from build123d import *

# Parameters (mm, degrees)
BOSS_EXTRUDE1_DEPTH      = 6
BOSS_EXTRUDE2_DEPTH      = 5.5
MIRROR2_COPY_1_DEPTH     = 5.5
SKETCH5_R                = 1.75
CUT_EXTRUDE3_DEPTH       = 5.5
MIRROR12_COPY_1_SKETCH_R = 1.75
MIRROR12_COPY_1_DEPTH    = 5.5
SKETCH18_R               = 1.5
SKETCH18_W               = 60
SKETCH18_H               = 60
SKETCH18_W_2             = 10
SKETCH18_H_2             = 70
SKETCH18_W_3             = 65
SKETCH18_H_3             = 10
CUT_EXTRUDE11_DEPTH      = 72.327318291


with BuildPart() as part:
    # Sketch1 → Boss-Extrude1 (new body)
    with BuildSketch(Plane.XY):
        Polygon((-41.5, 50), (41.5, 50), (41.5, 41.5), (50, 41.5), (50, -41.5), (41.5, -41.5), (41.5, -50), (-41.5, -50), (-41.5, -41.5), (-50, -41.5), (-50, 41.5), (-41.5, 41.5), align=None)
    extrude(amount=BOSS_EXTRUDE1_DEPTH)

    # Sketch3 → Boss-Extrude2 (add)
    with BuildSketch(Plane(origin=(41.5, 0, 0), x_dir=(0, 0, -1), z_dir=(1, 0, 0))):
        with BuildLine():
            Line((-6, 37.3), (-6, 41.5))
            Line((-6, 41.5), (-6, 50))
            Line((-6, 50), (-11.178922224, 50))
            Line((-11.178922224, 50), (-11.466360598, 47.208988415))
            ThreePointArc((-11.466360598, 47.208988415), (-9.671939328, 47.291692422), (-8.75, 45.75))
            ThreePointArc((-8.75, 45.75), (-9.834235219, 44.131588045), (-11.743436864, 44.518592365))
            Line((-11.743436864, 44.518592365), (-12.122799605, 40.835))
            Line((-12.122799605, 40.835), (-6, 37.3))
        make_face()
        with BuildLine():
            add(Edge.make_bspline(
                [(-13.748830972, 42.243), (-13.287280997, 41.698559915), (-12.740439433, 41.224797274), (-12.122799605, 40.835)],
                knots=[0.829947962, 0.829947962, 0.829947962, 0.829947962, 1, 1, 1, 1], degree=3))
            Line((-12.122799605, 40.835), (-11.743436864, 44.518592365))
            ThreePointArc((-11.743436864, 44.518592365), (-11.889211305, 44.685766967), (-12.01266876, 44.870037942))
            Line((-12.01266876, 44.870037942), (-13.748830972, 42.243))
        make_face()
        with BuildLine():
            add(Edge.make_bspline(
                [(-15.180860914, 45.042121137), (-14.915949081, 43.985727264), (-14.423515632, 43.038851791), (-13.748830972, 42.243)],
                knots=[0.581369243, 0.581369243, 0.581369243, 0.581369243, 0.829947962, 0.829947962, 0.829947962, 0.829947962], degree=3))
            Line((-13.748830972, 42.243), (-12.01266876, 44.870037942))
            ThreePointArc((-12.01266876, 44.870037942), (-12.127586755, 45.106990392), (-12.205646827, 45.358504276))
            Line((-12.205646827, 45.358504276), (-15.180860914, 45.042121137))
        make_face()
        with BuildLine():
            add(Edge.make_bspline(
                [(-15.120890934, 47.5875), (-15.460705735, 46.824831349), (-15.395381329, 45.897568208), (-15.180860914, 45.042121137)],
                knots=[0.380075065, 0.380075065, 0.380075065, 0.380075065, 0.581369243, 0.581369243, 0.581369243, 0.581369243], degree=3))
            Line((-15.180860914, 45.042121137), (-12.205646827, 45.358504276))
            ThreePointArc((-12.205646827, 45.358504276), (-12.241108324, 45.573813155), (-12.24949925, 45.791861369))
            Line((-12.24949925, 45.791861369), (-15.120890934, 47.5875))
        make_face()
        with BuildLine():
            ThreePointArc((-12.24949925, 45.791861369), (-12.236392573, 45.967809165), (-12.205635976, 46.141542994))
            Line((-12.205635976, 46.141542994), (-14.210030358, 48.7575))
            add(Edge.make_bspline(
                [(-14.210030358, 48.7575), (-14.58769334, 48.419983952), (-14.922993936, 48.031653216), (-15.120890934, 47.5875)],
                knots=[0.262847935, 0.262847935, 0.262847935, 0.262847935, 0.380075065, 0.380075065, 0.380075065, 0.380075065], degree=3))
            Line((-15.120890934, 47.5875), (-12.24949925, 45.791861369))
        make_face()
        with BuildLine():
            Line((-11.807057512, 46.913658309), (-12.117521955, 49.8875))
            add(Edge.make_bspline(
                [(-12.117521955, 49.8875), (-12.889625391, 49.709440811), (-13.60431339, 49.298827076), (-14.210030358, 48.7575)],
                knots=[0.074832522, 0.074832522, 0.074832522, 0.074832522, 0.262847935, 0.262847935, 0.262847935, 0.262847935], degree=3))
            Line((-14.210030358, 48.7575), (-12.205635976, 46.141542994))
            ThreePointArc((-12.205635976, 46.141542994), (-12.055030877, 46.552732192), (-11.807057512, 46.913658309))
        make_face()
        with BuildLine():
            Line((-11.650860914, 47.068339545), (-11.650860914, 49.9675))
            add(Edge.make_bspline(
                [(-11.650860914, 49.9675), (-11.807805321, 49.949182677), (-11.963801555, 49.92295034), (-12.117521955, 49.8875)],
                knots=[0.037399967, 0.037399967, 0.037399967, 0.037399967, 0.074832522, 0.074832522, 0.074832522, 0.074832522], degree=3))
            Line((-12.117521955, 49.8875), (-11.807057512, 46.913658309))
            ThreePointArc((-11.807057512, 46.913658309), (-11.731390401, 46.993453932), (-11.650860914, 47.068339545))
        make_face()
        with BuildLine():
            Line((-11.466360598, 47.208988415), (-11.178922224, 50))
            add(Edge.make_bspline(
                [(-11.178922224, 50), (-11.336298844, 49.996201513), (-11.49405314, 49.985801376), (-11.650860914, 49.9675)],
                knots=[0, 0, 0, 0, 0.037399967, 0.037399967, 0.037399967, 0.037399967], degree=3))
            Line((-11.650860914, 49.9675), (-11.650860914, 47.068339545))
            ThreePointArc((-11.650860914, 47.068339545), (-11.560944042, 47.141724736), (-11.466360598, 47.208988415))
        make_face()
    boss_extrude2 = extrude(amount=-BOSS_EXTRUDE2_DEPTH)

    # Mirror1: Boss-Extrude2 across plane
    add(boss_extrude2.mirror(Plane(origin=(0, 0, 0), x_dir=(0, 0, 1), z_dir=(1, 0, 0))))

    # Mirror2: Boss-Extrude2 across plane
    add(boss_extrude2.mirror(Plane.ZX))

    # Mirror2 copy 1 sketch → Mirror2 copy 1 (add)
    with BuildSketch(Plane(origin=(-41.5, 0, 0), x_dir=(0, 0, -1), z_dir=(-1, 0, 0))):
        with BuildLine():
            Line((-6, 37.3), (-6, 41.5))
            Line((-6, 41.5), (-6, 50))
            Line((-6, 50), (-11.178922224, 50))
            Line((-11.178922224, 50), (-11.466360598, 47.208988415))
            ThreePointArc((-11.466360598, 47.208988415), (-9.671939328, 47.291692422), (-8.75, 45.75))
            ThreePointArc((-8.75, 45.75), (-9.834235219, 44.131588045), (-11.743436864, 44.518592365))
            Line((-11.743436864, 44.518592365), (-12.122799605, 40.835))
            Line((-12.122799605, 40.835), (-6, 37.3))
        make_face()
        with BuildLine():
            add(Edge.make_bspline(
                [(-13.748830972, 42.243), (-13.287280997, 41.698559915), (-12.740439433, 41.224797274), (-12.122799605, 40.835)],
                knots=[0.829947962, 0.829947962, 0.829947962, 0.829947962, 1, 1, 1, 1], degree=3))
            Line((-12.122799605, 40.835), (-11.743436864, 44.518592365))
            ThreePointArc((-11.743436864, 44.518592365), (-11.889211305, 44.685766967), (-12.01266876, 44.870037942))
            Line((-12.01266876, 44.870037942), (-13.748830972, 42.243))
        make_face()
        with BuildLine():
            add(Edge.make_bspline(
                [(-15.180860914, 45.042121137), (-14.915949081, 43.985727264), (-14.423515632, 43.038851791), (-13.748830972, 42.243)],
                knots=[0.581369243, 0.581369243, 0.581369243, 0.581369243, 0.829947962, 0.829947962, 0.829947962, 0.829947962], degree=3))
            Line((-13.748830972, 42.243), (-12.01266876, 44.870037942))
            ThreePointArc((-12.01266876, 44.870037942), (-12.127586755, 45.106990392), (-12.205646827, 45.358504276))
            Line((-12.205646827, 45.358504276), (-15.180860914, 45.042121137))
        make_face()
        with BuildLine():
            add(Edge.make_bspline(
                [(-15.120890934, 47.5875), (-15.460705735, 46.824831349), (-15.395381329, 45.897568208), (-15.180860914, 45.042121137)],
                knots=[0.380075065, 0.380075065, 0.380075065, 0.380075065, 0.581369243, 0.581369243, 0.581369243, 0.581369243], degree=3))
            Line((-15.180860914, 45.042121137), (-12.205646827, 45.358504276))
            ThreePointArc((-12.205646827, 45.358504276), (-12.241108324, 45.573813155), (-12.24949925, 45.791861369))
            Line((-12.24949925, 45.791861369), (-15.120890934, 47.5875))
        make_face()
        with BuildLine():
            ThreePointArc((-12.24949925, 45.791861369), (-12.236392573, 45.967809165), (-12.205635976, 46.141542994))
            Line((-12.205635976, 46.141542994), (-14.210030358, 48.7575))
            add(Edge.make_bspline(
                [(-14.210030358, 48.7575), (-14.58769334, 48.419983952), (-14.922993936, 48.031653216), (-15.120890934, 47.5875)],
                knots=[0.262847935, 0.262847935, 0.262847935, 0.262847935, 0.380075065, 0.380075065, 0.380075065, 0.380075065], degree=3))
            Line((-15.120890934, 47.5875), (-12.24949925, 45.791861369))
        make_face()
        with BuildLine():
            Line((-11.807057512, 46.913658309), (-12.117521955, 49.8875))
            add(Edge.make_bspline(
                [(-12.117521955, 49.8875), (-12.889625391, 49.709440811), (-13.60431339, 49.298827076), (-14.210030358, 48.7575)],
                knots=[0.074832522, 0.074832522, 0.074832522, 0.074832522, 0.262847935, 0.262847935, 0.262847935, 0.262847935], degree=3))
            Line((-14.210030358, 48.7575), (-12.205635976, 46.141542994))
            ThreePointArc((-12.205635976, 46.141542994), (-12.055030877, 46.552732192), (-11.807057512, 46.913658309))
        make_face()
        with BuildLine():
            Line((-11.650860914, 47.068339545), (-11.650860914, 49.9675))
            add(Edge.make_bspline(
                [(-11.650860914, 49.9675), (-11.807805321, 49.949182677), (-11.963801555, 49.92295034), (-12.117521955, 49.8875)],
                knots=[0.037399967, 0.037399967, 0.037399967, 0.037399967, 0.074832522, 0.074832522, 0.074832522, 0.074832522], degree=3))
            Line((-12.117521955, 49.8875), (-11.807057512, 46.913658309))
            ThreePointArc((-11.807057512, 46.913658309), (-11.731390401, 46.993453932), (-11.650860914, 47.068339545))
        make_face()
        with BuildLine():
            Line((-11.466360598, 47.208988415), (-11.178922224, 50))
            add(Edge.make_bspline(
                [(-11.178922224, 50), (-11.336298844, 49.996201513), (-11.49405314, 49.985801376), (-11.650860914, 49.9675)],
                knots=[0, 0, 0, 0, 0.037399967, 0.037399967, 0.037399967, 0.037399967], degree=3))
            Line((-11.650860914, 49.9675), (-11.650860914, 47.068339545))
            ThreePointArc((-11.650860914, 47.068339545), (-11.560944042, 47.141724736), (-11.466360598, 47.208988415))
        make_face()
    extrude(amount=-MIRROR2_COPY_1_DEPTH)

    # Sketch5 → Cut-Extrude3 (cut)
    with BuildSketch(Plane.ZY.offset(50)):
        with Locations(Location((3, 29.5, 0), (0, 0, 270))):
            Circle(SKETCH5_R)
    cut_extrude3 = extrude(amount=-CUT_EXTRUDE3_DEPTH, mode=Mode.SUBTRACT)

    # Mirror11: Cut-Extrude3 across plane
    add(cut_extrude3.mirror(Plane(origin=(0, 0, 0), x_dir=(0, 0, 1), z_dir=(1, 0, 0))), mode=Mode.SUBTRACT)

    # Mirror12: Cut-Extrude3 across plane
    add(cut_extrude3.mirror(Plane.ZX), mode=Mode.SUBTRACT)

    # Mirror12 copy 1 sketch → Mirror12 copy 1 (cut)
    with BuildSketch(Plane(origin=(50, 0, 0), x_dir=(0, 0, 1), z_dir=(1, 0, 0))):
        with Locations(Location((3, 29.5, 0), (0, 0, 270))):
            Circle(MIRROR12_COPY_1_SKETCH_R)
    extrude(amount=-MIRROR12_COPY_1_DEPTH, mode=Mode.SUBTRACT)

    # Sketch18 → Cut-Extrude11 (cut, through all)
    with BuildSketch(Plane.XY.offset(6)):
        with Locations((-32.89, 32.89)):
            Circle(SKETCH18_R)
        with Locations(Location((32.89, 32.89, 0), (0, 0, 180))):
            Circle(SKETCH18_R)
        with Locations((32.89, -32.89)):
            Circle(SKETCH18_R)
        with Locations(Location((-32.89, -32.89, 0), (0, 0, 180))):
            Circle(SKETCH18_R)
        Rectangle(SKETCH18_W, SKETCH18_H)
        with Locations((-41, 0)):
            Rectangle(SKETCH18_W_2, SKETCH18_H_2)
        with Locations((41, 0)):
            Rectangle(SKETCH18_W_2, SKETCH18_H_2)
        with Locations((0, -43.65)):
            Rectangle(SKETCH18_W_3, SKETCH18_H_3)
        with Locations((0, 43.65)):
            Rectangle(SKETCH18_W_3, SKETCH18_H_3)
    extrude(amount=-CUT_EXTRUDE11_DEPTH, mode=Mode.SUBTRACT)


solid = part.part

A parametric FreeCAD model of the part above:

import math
import FreeCAD as App
import Part
import Sketcher


def add_polygon(sketch, points):
    """Adds a closed chain of lines whose ends are joined by coincident constraints."""
    first, n = sketch.GeometryCount, len(points)
    for a, b in zip(points, points[1:] + points[:1]):
        sketch.addGeometry(Part.LineSegment(App.Vector(*a, 0), App.Vector(*b, 0)), False)
    for i in range(n):
        sketch.addConstraint(Sketcher.Constraint("Coincident", first + i, 2, first + (i + 1) % n, 1))

doc = App.newDocument("Part")
body = doc.addObject("PartDesign::Body", "Body")

# Sketch on XY plane
sketch1 = body.newObject("Sketcher::SketchObject", "Sketch")
sketch1.AttachmentSupport = (doc.getObject("XY_Plane"), [""])
sketch1.MapMode = "FlatFace"
add_polygon(sketch1, [(41.5, 50), (-41.5, 50), (-41.5, 41.5), (-50, 41.5), (-50, -41.5), (-41.5, -41.5), (-41.5, -50), (41.5, -50), (41.5, -41.5), (50, -41.5), (50, 41.5), (41.5, 41.5)])  # lines 0-11
sketch1.addConstraint(Sketcher.Constraint("Horizontal", 0))
sketch1.addConstraint(Sketcher.Constraint("Vertical", 1))
sketch1.addConstraint(Sketcher.Constraint("Horizontal", 2))
sketch1.addConstraint(Sketcher.Constraint("Vertical", 3))
sketch1.addConstraint(Sketcher.Constraint("Horizontal", 4))
sketch1.addConstraint(Sketcher.Constraint("Vertical", 5))
sketch1.addConstraint(Sketcher.Constraint("Horizontal", 6))
sketch1.addConstraint(Sketcher.Constraint("Vertical", 7))
sketch1.addConstraint(Sketcher.Constraint("Horizontal", 8))
sketch1.addConstraint(Sketcher.Constraint("Vertical", 9))
sketch1.addConstraint(Sketcher.Constraint("Horizontal", 10))
sketch1.addConstraint(Sketcher.Constraint("Vertical", 11))
sketch1.addConstraint(Sketcher.Constraint("Symmetric", 0, 2, 6, 2, -1, 1))
sketch1.addConstraint(Sketcher.Constraint("Symmetric", 2, 2, 8, 2, -1, 1))
sketch1.addConstraint(Sketcher.Constraint("Symmetric", 4, 2, 10, 2, -1, 1))
sketch1.addConstraint(Sketcher.Constraint("Symmetric", 4, 2, 7, 2, -2))
sketch1.addConstraint(Sketcher.Constraint("Equal", 10, 1))
sketch1.addConstraint(Sketcher.Constraint("Equal", 6, 3))
sketch1.addConstraint(Sketcher.Constraint("DistanceX", 0, 2, 0, 1, 83.0))
sketch1.addConstraint(Sketcher.Constraint("DistanceX", 2, 2, 2, 1, 8.5))
pad1 = body.newObject("PartDesign::Pad", "Pad")
pad1.Profile = sketch1
pad1.Length = 6

# Sketch on YZ plane
sketch2 = body.newObject("Sketcher::SketchObject", "Sketch001")
sketch2.AttachmentSupport = (doc.getObject("YZ_Plane"), [""])
sketch2.MapMode = "FlatFace"
sketch2.AttachmentOffset = App.Placement(App.Vector(0, 0, 41.5), App.Rotation())
sketch2.addGeometry(Part.LineSegment(App.Vector(37.3, 6, 0), App.Vector(50, 6, 0)), False)
sketch2.addGeometry(Part.LineSegment(App.Vector(50, 6, 0), App.Vector(50, 11.178922, 0)), False)
sketch2.addGeometry(Part.BSplineCurve([App.Vector(50, 11.178922, 0), App.Vector(49.996202, 11.336299, 0), App.Vector(49.985801, 11.494053, 0), App.Vector(49.9675, 11.650861, 0)], [4, 4], [0, 0.037399967], False, 3, [1, 1, 1, 1], False), False)
sketch2.addGeometry(Part.BSplineCurve([App.Vector(49.9675, 11.650861, 0), App.Vector(49.949183, 11.807805, 0), App.Vector(49.92295, 11.963802, 0), App.Vector(49.8875, 12.117522, 0)], [4, 4], [0.037399967, 0.074832522], False, 3, [1, 1, 1, 1], False), False)
sketch2.addGeometry(Part.BSplineCurve([App.Vector(49.8875, 12.117522, 0), App.Vector(49.709441, 12.889625, 0), App.Vector(49.298827, 13.604313, 0), App.Vector(48.7575, 14.21003, 0)], [4, 4], [0.074832522, 0.262847935], False, 3, [1, 1, 1, 1], False), False)
sketch2.addGeometry(Part.BSplineCurve([App.Vector(48.7575, 14.21003, 0), App.Vector(48.419984, 14.587693, 0), App.Vector(48.031653, 14.922994, 0), App.Vector(47.5875, 15.120891, 0)], [4, 4], [0.262847935, 0.380075065], False, 3, [1, 1, 1, 1], False), False)
sketch2.addGeometry(Part.BSplineCurve([App.Vector(47.5875, 15.120891, 0), App.Vector(46.824831, 15.460706, 0), App.Vector(45.897568, 15.395381, 0), App.Vector(45.042121, 15.180861, 0)], [4, 4], [0.380075065, 0.581369243], False, 3, [1, 1, 1, 1], False), False)
sketch2.addGeometry(Part.BSplineCurve([App.Vector(45.042121, 15.180861, 0), App.Vector(43.985727, 14.915949, 0), App.Vector(43.038852, 14.423516, 0), App.Vector(42.243, 13.748831, 0)], [4, 4], [0.581369243, 0.829947962], False, 3, [1, 1, 1, 1], False), False)
sketch2.addGeometry(Part.BSplineCurve([App.Vector(42.243, 13.748831, 0), App.Vector(41.69856, 13.287281, 0), App.Vector(41.224797, 12.740439, 0), App.Vector(40.835, 12.1228, 0)], [4, 4], [0.829947962, 1], False, 3, [1, 1, 1, 1], False), False)
sketch2.addGeometry(Part.LineSegment(App.Vector(40.835, 12.1228, 0), App.Vector(37.3, 6, 0)), False)
sketch2.addGeometry(Part.ArcOfCircle(Part.Circle(App.Vector(45.75, 10.5, 0), App.Vector(0, 0, 1), 1.75), math.radians(-90), math.radians(33.51849)), False)
sketch2.addGeometry(Part.ArcOfCircle(Part.Circle(App.Vector(45.75, 10.5, 0), App.Vector(0, 0, 1), 1.75), math.radians(134.72151), math.radians(270)), False)
sketch2.addGeometry(Part.ArcOfCircle(Part.Circle(App.Vector(45.75, 10.5, 0), App.Vector(0, 0, 1), 1.75), math.radians(120.187771), math.radians(134.72151)), False)
sketch2.addGeometry(Part.ArcOfCircle(Part.Circle(App.Vector(45.75, 10.5, 0), App.Vector(0, 0, 1), 1.75), math.radians(102.927141), math.radians(120.187771)), False)
sketch2.addGeometry(Part.ArcOfCircle(Part.Circle(App.Vector(45.75, 10.5, 0), App.Vector(0, 0, 1), 1.75), math.radians(88.629309), math.radians(102.927141)), False)
sketch2.addGeometry(Part.ArcOfCircle(Part.Circle(App.Vector(45.75, 10.5, 0), App.Vector(0, 0, 1), 1.75), math.radians(77.071271), math.radians(88.629309)), False)
sketch2.addGeometry(Part.ArcOfCircle(Part.Circle(App.Vector(45.75, 10.5, 0), App.Vector(0, 0, 1), 1.75), math.radians(48.321694), math.radians(77.071271)), False)
sketch2.addGeometry(Part.ArcOfCircle(Part.Circle(App.Vector(45.75, 10.5, 0), App.Vector(0, 0, 1), 1.75), math.radians(41.119738), math.radians(48.321694)), False)
sketch2.addGeometry(Part.ArcOfCircle(Part.Circle(App.Vector(45.75, 10.5, 0), App.Vector(0, 0, 1), 1.75), math.radians(33.518489), math.radians(41.119739)), False)
sketch2.addConstraint(Sketcher.Constraint("Block", 2))
sketch2.addConstraint(Sketcher.Constraint("Block", 3))
sketch2.addConstraint(Sketcher.Constraint("Block", 4))
sketch2.addConstraint(Sketcher.Constraint("Block", 5))
sketch2.addConstraint(Sketcher.Constraint("Block", 6))
sketch2.addConstraint(Sketcher.Constraint("Block", 7))
sketch2.addConstraint(Sketcher.Constraint("Block", 8))
sketch2.addConstraint(Sketcher.Constraint("Coincident", 0, 2, 1, 1))
sketch2.addConstraint(Sketcher.Constraint("Coincident", 1, 2, 2, 1))
sketch2.addConstraint(Sketcher.Constraint("Coincident", 8, 2, 9, 1))
sketch2.addConstraint(Sketcher.Constraint("Coincident", 9, 2, 0, 1))
sketch2.addConstraint(Sketcher.Constraint("Coincident", 10, 1, 11, 2))
sketch2.addConstraint(Sketcher.Constraint("Coincident", 11, 1, 12, 2))
sketch2.addConstraint(Sketcher.Constraint("Coincident", 12, 1, 13, 2))
sketch2.addConstraint(Sketcher.Constraint("Coincident", 13, 1, 14, 2))
sketch2.addConstraint(Sketcher.Constraint("Coincident", 14, 1, 15, 2))
sketch2.addConstraint(Sketcher.Constraint("Coincident", 15, 1, 16, 2))
sketch2.addConstraint(Sketcher.Constraint("Coincident", 16, 1, 17, 2))
sketch2.addConstraint(Sketcher.Constraint("Coincident", 17, 1, 18, 2))
sketch2.addConstraint(Sketcher.Constraint("Coincident", 18, 1, 10, 2))
sketch2.addConstraint(Sketcher.Constraint("Horizontal", 0))
sketch2.addConstraint(Sketcher.Constraint("Vertical", 1))
sketch2.addConstraint(Sketcher.Constraint("Coincident", 11, 3, 10, 3))
sketch2.addConstraint(Sketcher.Constraint("Coincident", 12, 3, 10, 3))
sketch2.addConstraint(Sketcher.Constraint("Coincident", 13, 3, 10, 3))
sketch2.addConstraint(Sketcher.Constraint("Coincident", 14, 3, 10, 3))
sketch2.addConstraint(Sketcher.Constraint("Coincident", 15, 3, 10, 3))
sketch2.addConstraint(Sketcher.Constraint("Coincident", 16, 3, 10, 3))
sketch2.addConstraint(Sketcher.Constraint("Coincident", 17, 3, 10, 3))
sketch2.addConstraint(Sketcher.Constraint("Radius", 10, 1.75))
sketch2.addConstraint(Sketcher.Constraint("Radius", 18, 1.75))
sketch2.addConstraint(Sketcher.Constraint("DistanceX", 0, 1, 0, 2, 12.7))
sketch2.addConstraint(Sketcher.Constraint("DistanceY", -1, 1, 0, 2, 6.0))
sketch2.addConstraint(Sketcher.Constraint("DistanceY", -1, 1, 10, 3, 10.5))
sketch2.addConstraint(Sketcher.Constraint("DistanceX", -1, 1, 10, 3, 45.75))
sketch2.addConstraint(Sketcher.Constraint("DistanceX", -1, 1, 10, 1, 45.75))
sketch2.addConstraint(Sketcher.Constraint("DistanceY", -1, 1, 14, 1, 12.249499))
sketch2.addConstraint(Sketcher.Constraint("DistanceY", 11, 1, 15, 1, 0.462199))
sketch2.addConstraint(Sketcher.Constraint("DistanceY", 18, 1, 17, 1, 0.1845))
sketch2.addConstraint(Sketcher.Constraint("DistanceY", -1, 1, 12, 1, 12.012669))
sketch2.addConstraint(Sketcher.Constraint("DistanceX", -1, 1, 16, 1, 46.913658))
sketch2.addConstraint(Sketcher.Constraint("DistanceX", -1, 1, 17, 1, 47.06834))
sketch2.addConstraint(Sketcher.Constraint("DistanceY", 11, 1, 12, 1, 0.269232))
sketch2.addConstraint(Sketcher.Constraint("DistanceY", 12, 1, 13, 1, 0.192978))
pad2 = body.newObject("PartDesign::Pad", "Pad001")
pad2.Profile = sketch2
pad2.Length = 5.5
pad2.Reversed = True
doc.recompute()

mirrored = body.newObject("PartDesign::Mirrored", "Mirrored")
mirrored.Originals = [pad2]
mirrored.MirrorPlane = (doc.getObject("YZ_Plane"), [""])
body.Tip = mirrored
doc.recompute()

mirrored2 = body.newObject("PartDesign::Mirrored", "Mirrored001")
mirrored2.Originals = [pad2]
mirrored2.MirrorPlane = (doc.getObject("XZ_Plane"), [""])
body.Tip = mirrored2

# Sketch on YZ plane
sketch3 = body.newObject("Sketcher::SketchObject", "Sketch002")
sketch3.AttachmentSupport = (doc.getObject("YZ_Plane"), [""])
sketch3.MapMode = "FlatFace"
sketch3.AttachmentOffset = App.Placement(App.Vector(0, 0, -41.5), App.Rotation())
sketch3.addGeometry(Part.LineSegment(App.Vector(-37.3, 6, 0), App.Vector(-50, 6, 0)), False)
sketch3.addGeometry(Part.LineSegment(App.Vector(-50, 6, 0), App.Vector(-50, 11.178922, 0)), False)
sketch3.addGeometry(Part.BSplineCurve([App.Vector(-50, 11.178922, 0), App.Vector(-49.996202, 11.336299, 0), App.Vector(-49.985801, 11.494053, 0), App.Vector(-49.9675, 11.650861, 0)], [4, 4], [0, 0.037399967], False, 3, [1, 1, 1, 1], False), False)
sketch3.addGeometry(Part.BSplineCurve([App.Vector(-49.9675, 11.650861, 0), App.Vector(-49.949183, 11.807805, 0), App.Vector(-49.92295, 11.963802, 0), App.Vector(-49.8875, 12.117522, 0)], [4, 4], [0.037399967, 0.074832522], False, 3, [1, 1, 1, 1], False), False)
sketch3.addGeometry(Part.BSplineCurve([App.Vector(-49.8875, 12.117522, 0), App.Vector(-49.709441, 12.889625, 0), App.Vector(-49.298827, 13.604313, 0), App.Vector(-48.7575, 14.21003, 0)], [4, 4], [0.074832522, 0.262847935], False, 3, [1, 1, 1, 1], False), False)
sketch3.addGeometry(Part.BSplineCurve([App.Vector(-48.7575, 14.21003, 0), App.Vector(-48.419984, 14.587693, 0), App.Vector(-48.031653, 14.922994, 0), App.Vector(-47.5875, 15.120891, 0)], [4, 4], [0.262847935, 0.380075065], False, 3, [1, 1, 1, 1], False), False)
sketch3.addGeometry(Part.BSplineCurve([App.Vector(-47.5875, 15.120891, 0), App.Vector(-46.824831, 15.460706, 0), App.Vector(-45.897568, 15.395381, 0), App.Vector(-45.042121, 15.180861, 0)], [4, 4], [0.380075065, 0.581369243], False, 3, [1, 1, 1, 1], False), False)
sketch3.addGeometry(Part.BSplineCurve([App.Vector(-45.042121, 15.180861, 0), App.Vector(-43.985727, 14.915949, 0), App.Vector(-43.038852, 14.423516, 0), App.Vector(-42.243, 13.748831, 0)], [4, 4], [0.581369243, 0.829947962], False, 3, [1, 1, 1, 1], False), False)
sketch3.addGeometry(Part.BSplineCurve([App.Vector(-42.243, 13.748831, 0), App.Vector(-41.69856, 13.287281, 0), App.Vector(-41.224797, 12.740439, 0), App.Vector(-40.835, 12.1228, 0)], [4, 4], [0.829947962, 1], False, 3, [1, 1, 1, 1], False), False)
sketch3.addGeometry(Part.LineSegment(App.Vector(-40.835, 12.1228, 0), App.Vector(-37.3, 6, 0)), False)
sketch3.addGeometry(Part.ArcOfCircle(Part.Circle(App.Vector(-45.75, 10.5, 0), App.Vector(0, 0, 1), 1.75), math.radians(146.48151), math.radians(270)), False)
sketch3.addGeometry(Part.ArcOfCircle(Part.Circle(App.Vector(-45.75, 10.5, 0), App.Vector(0, 0, 1), 1.75), math.radians(-90), math.radians(45.27849)), False)
sketch3.addGeometry(Part.ArcOfCircle(Part.Circle(App.Vector(-45.75, 10.5, 0), App.Vector(0, 0, 1), 1.75), math.radians(45.27849), math.radians(59.812229)), False)
sketch3.addGeometry(Part.ArcOfCircle(Part.Circle(App.Vector(-45.75, 10.5, 0), App.Vector(0, 0, 1), 1.75), math.radians(59.812229), math.radians(77.072859)), False)
sketch3.addGeometry(Part.ArcOfCircle(Part.Circle(App.Vector(-45.75, 10.5, 0), App.Vector(0, 0, 1), 1.75), math.radians(77.072859), math.radians(91.370691)), False)
sketch3.addGeometry(Part.ArcOfCircle(Part.Circle(App.Vector(-45.75, 10.5, 0), App.Vector(0, 0, 1), 1.75), math.radians(91.370691), math.radians(102.928729)), False)
sketch3.addGeometry(Part.ArcOfCircle(Part.Circle(App.Vector(-45.75, 10.5, 0), App.Vector(0, 0, 1), 1.75), math.radians(102.928729), math.radians(131.678306)), False)
sketch3.addGeometry(Part.ArcOfCircle(Part.Circle(App.Vector(-45.75, 10.5, 0), App.Vector(0, 0, 1), 1.75), math.radians(131.678306), math.radians(138.880262)), False)
sketch3.addGeometry(Part.ArcOfCircle(Part.Circle(App.Vector(-45.75, 10.5, 0), App.Vector(0, 0, 1), 1.75), math.radians(138.880261), math.radians(146.481511)), False)
sketch3.addConstraint(Sketcher.Constraint("Block", 2))
sketch3.addConstraint(Sketcher.Constraint("Block", 3))
sketch3.addConstraint(Sketcher.Constraint("Block", 4))
sketch3.addConstraint(Sketcher.Constraint("Block", 5))
sketch3.addConstraint(Sketcher.Constraint("Block", 6))
sketch3.addConstraint(Sketcher.Constraint("Block", 7))
sketch3.addConstraint(Sketcher.Constraint("Block", 8))
sketch3.addConstraint(Sketcher.Constraint("Coincident", 0, 2, 1, 1))
sketch3.addConstraint(Sketcher.Constraint("Coincident", 1, 2, 2, 1))
sketch3.addConstraint(Sketcher.Constraint("Coincident", 8, 2, 9, 1))
sketch3.addConstraint(Sketcher.Constraint("Coincident", 9, 2, 0, 1))
sketch3.addConstraint(Sketcher.Constraint("Coincident", 10, 2, 11, 1))
sketch3.addConstraint(Sketcher.Constraint("Coincident", 11, 2, 12, 1))
sketch3.addConstraint(Sketcher.Constraint("Coincident", 12, 2, 13, 1))
sketch3.addConstraint(Sketcher.Constraint("Coincident", 13, 2, 14, 1))
sketch3.addConstraint(Sketcher.Constraint("Coincident", 14, 2, 15, 1))
sketch3.addConstraint(Sketcher.Constraint("Coincident", 15, 2, 16, 1))
sketch3.addConstraint(Sketcher.Constraint("Coincident", 16, 2, 17, 1))
sketch3.addConstraint(Sketcher.Constraint("Coincident", 17, 2, 18, 1))
sketch3.addConstraint(Sketcher.Constraint("Coincident", 18, 2, 10, 1))
sketch3.addConstraint(Sketcher.Constraint("Horizontal", 0))
sketch3.addConstraint(Sketcher.Constraint("Vertical", 1))
sketch3.addConstraint(Sketcher.Constraint("Coincident", 11, 3, 10, 3))
sketch3.addConstraint(Sketcher.Constraint("Coincident", 12, 3, 10, 3))
sketch3.addConstraint(Sketcher.Constraint("Coincident", 13, 3, 10, 3))
sketch3.addConstraint(Sketcher.Constraint("Coincident", 14, 3, 10, 3))
sketch3.addConstraint(Sketcher.Constraint("Coincident", 15, 3, 10, 3))
sketch3.addConstraint(Sketcher.Constraint("Coincident", 16, 3, 10, 3))
sketch3.addConstraint(Sketcher.Constraint("Coincident", 17, 3, 10, 3))
sketch3.addConstraint(Sketcher.Constraint("Radius", 10, 1.75))
sketch3.addConstraint(Sketcher.Constraint("Radius", 18, 1.75))
sketch3.addConstraint(Sketcher.Constraint("DistanceX", 0, 2, 0, 1, 12.7))
sketch3.addConstraint(Sketcher.Constraint("DistanceY", -1, 1, 0, 2, 6.0))
sketch3.addConstraint(Sketcher.Constraint("DistanceY", -1, 1, 10, 3, 10.5))
sketch3.addConstraint(Sketcher.Constraint("DistanceX", 10, 3, -1, 1, 45.75))
sketch3.addConstraint(Sketcher.Constraint("DistanceX", 10, 2, -1, 1, 45.75))
sketch3.addConstraint(Sketcher.Constraint("DistanceY", -1, 1, 14, 2, 12.249499))
sketch3.addConstraint(Sketcher.Constraint("DistanceY", 11, 2, 15, 2, 0.462199))
sketch3.addConstraint(Sketcher.Constraint("DistanceY", 18, 2, 17, 2, 0.1845))
sketch3.addConstraint(Sketcher.Constraint("DistanceY", -1, 1, 12, 2, 12.012669))
sketch3.addConstraint(Sketcher.Constraint("DistanceX", 16, 2, -1, 1, 46.913658))
sketch3.addConstraint(Sketcher.Constraint("DistanceX", 17, 2, -1, 1, 47.06834))
sketch3.addConstraint(Sketcher.Constraint("DistanceY", 11, 2, 12, 2, 0.269232))
sketch3.addConstraint(Sketcher.Constraint("DistanceY", 12, 2, 13, 2, 0.192978))
pad3 = body.newObject("PartDesign::Pad", "Pad002")
pad3.Profile = sketch3
pad3.Length = 5.5

# Sketch on YZ plane
sketch4 = body.newObject("Sketcher::SketchObject", "Sketch003")
sketch4.AttachmentSupport = (doc.getObject("YZ_Plane"), [""])
sketch4.MapMode = "FlatFace"
sketch4.AttachmentOffset = App.Placement(App.Vector(0, 0, -50), App.Rotation())
sketch4.addGeometry(Part.Circle(App.Vector(29.5, 3, 0), App.Vector(0, 0, 1), 1.75), False)
sketch4.addConstraint(Sketcher.Constraint("Diameter", 0, 3.5))
sketch4.addConstraint(Sketcher.Constraint("DistanceY", -1, 1, 0, 3, 3.0))
sketch4.addConstraint(Sketcher.Constraint("DistanceX", -1, 1, 0, 3, 29.5))
pocket1 = body.newObject("PartDesign::Pocket", "Pocket")
pocket1.Profile = sketch4
pocket1.Length = 5.5
pocket1.Reversed = True
doc.recompute()

mirrored3 = body.newObject("PartDesign::Mirrored", "Mirrored002")
mirrored3.Originals = [pocket1]
mirrored3.MirrorPlane = (doc.getObject("YZ_Plane"), [""])
body.Tip = mirrored3
doc.recompute()

mirrored4 = body.newObject("PartDesign::Mirrored", "Mirrored003")
mirrored4.Originals = [pocket1]
mirrored4.MirrorPlane = (doc.getObject("XZ_Plane"), [""])
body.Tip = mirrored4

# Sketch on YZ plane
sketch5 = body.newObject("Sketcher::SketchObject", "Sketch004")
sketch5.AttachmentSupport = (doc.getObject("YZ_Plane"), [""])
sketch5.MapMode = "FlatFace"
sketch5.AttachmentOffset = App.Placement(App.Vector(0, 0, 50), App.Rotation())
sketch5.addGeometry(Part.Circle(App.Vector(-29.5, 3, 0), App.Vector(0, 0, 1), 1.75), False)
sketch5.addConstraint(Sketcher.Constraint("Diameter", 0, 3.5))
sketch5.addConstraint(Sketcher.Constraint("DistanceY", -1, 1, 0, 3, 3.0))
sketch5.addConstraint(Sketcher.Constraint("DistanceX", 0, 3, -1, 1, 29.5))
pocket2 = body.newObject("PartDesign::Pocket", "Pocket001")
pocket2.Profile = sketch5
pocket2.Length = 5.5

# Sketch on XY plane
sketch6 = body.newObject("Sketcher::SketchObject", "Sketch005")
sketch6.AttachmentSupport = (doc.getObject("XY_Plane"), [""])
sketch6.MapMode = "FlatFace"
sketch6.AttachmentOffset = App.Placement(App.Vector(0, 0, 6), App.Rotation())
sketch6.addGeometry(Part.Circle(App.Vector(-32.89, 32.89, 0), App.Vector(0, 0, 1), 1.5), False)  # 0
sketch6.addGeometry(Part.Circle(App.Vector(32.89, 32.89, 0), App.Vector(0, 0, 1), 1.5), False)  # 1
sketch6.addGeometry(Part.Circle(App.Vector(32.89, -32.89, 0), App.Vector(0, 0, 1), 1.5), False)  # 2
sketch6.addGeometry(Part.Circle(App.Vector(-32.89, -32.89, 0), App.Vector(0, 0, 1), 1.5), False)  # 3
add_polygon(sketch6, [(-30, 30), (-30, -30), (30, -30), (30, 30)])  # lines 4-7
add_polygon(sketch6, [(-46, 35), (-46, -35), (-36, -35), (-36, 35)])  # lines 8-11
add_polygon(sketch6, [(36, 35), (36, -35), (46, -35), (46, 35)])  # lines 12-15
add_polygon(sketch6, [(-32.5, -38.65), (-32.5, -48.65), (32.5, -48.65), (32.5, -38.65)])  # lines 16-19
add_polygon(sketch6, [(-32.5, 48.65), (-32.5, 38.65), (32.5, 38.65), (32.5, 48.65)])  # lines 20-23
sketch6.addConstraint(Sketcher.Constraint("Vertical", 4))
sketch6.addConstraint(Sketcher.Constraint("Horizontal", 5))
sketch6.addConstraint(Sketcher.Constraint("Vertical", 6))
sketch6.addConstraint(Sketcher.Constraint("Horizontal", 7))
sketch6.addConstraint(Sketcher.Constraint("Vertical", 8))
sketch6.addConstraint(Sketcher.Constraint("Horizontal", 9))
sketch6.addConstraint(Sketcher.Constraint("Vertical", 10))
sketch6.addConstraint(Sketcher.Constraint("Horizontal", 11))
sketch6.addConstraint(Sketcher.Constraint("Vertical", 12))
sketch6.addConstraint(Sketcher.Constraint("Horizontal", 13))
sketch6.addConstraint(Sketcher.Constraint("Vertical", 14))
sketch6.addConstraint(Sketcher.Constraint("Horizontal", 15))
sketch6.addConstraint(Sketcher.Constraint("Vertical", 16))
sketch6.addConstraint(Sketcher.Constraint("Horizontal", 17))
sketch6.addConstraint(Sketcher.Constraint("Vertical", 18))
sketch6.addConstraint(Sketcher.Constraint("Horizontal", 19))
sketch6.addConstraint(Sketcher.Constraint("Vertical", 20))
sketch6.addConstraint(Sketcher.Constraint("Horizontal", 21))
sketch6.addConstraint(Sketcher.Constraint("Vertical", 22))
sketch6.addConstraint(Sketcher.Constraint("Horizontal", 23))
sketch6.addConstraint(Sketcher.Constraint("Equal", 0, 1))
sketch6.addConstraint(Sketcher.Constraint("Equal", 1, 2))
sketch6.addConstraint(Sketcher.Constraint("Equal", 2, 3))
sketch6.addConstraint(Sketcher.Constraint("Symmetric", 0, 3, 2, 3, -1, 1))
sketch6.addConstraint(Sketcher.Constraint("Symmetric", 1, 3, 3, 3, -1, 1))
sketch6.addConstraint(Sketcher.Constraint("Symmetric", 4, 2, 6, 2, -1, 1))
sketch6.addConstraint(Sketcher.Constraint("Symmetric", 10, 2, 12, 2, -1, 1))
sketch6.addConstraint(Sketcher.Constraint("Symmetric", 8, 2, 14, 2, -1, 1))
sketch6.addConstraint(Sketcher.Constraint("Symmetric", 18, 2, 20, 2, -1, 1))
sketch6.addConstraint(Sketcher.Constraint("Symmetric", 16, 2, 22, 2, -1, 1))
sketch6.addConstraint(Sketcher.Constraint("Symmetric", 0, 3, 1, 3, -2))
sketch6.addConstraint(Sketcher.Constraint("Horizontal", 9, 2, 12, 2))
sketch6.addConstraint(Sketcher.Constraint("Vertical", 19, 2, 20, 2))
sketch6.addConstraint(Sketcher.Constraint("Equal", 7, 4))
sketch6.addConstraint(Sketcher.Constraint("Equal", 15, 16))
sketch6.addConstraint(Sketcher.Constraint("Diameter", 0, 3.0))
sketch6.addConstraint(Sketcher.Constraint("DistanceX", 5, 1, 5, 2, 60.0))
sketch6.addConstraint(Sketcher.Constraint("DistanceX", 9, 1, 9, 2, 10.0))
sketch6.addConstraint(Sketcher.Constraint("DistanceX", 17, 1, 17, 2, 65.0))
sketch6.addConstraint(Sketcher.Constraint("DistanceY", 8, 2, 8, 1, 70.0))
sketch6.addConstraint(Sketcher.Constraint("DistanceX", 8, 2, -1, 1, 46.0))
sketch6.addConstraint(Sketcher.Constraint("DistanceX", 0, 3, -1, 1, 32.89))
sketch6.addConstraint(Sketcher.Constraint("DistanceY", -1, 1, 0, 3, 32.89))
sketch6.addConstraint(Sketcher.Constraint("DistanceY", 16, 2, -1, 1, 48.65))
pocket3 = body.newObject("PartDesign::Pocket", "Pocket002")
pocket3.Profile = sketch6
pocket3.Type = "ThroughAll"

doc.recompute()
